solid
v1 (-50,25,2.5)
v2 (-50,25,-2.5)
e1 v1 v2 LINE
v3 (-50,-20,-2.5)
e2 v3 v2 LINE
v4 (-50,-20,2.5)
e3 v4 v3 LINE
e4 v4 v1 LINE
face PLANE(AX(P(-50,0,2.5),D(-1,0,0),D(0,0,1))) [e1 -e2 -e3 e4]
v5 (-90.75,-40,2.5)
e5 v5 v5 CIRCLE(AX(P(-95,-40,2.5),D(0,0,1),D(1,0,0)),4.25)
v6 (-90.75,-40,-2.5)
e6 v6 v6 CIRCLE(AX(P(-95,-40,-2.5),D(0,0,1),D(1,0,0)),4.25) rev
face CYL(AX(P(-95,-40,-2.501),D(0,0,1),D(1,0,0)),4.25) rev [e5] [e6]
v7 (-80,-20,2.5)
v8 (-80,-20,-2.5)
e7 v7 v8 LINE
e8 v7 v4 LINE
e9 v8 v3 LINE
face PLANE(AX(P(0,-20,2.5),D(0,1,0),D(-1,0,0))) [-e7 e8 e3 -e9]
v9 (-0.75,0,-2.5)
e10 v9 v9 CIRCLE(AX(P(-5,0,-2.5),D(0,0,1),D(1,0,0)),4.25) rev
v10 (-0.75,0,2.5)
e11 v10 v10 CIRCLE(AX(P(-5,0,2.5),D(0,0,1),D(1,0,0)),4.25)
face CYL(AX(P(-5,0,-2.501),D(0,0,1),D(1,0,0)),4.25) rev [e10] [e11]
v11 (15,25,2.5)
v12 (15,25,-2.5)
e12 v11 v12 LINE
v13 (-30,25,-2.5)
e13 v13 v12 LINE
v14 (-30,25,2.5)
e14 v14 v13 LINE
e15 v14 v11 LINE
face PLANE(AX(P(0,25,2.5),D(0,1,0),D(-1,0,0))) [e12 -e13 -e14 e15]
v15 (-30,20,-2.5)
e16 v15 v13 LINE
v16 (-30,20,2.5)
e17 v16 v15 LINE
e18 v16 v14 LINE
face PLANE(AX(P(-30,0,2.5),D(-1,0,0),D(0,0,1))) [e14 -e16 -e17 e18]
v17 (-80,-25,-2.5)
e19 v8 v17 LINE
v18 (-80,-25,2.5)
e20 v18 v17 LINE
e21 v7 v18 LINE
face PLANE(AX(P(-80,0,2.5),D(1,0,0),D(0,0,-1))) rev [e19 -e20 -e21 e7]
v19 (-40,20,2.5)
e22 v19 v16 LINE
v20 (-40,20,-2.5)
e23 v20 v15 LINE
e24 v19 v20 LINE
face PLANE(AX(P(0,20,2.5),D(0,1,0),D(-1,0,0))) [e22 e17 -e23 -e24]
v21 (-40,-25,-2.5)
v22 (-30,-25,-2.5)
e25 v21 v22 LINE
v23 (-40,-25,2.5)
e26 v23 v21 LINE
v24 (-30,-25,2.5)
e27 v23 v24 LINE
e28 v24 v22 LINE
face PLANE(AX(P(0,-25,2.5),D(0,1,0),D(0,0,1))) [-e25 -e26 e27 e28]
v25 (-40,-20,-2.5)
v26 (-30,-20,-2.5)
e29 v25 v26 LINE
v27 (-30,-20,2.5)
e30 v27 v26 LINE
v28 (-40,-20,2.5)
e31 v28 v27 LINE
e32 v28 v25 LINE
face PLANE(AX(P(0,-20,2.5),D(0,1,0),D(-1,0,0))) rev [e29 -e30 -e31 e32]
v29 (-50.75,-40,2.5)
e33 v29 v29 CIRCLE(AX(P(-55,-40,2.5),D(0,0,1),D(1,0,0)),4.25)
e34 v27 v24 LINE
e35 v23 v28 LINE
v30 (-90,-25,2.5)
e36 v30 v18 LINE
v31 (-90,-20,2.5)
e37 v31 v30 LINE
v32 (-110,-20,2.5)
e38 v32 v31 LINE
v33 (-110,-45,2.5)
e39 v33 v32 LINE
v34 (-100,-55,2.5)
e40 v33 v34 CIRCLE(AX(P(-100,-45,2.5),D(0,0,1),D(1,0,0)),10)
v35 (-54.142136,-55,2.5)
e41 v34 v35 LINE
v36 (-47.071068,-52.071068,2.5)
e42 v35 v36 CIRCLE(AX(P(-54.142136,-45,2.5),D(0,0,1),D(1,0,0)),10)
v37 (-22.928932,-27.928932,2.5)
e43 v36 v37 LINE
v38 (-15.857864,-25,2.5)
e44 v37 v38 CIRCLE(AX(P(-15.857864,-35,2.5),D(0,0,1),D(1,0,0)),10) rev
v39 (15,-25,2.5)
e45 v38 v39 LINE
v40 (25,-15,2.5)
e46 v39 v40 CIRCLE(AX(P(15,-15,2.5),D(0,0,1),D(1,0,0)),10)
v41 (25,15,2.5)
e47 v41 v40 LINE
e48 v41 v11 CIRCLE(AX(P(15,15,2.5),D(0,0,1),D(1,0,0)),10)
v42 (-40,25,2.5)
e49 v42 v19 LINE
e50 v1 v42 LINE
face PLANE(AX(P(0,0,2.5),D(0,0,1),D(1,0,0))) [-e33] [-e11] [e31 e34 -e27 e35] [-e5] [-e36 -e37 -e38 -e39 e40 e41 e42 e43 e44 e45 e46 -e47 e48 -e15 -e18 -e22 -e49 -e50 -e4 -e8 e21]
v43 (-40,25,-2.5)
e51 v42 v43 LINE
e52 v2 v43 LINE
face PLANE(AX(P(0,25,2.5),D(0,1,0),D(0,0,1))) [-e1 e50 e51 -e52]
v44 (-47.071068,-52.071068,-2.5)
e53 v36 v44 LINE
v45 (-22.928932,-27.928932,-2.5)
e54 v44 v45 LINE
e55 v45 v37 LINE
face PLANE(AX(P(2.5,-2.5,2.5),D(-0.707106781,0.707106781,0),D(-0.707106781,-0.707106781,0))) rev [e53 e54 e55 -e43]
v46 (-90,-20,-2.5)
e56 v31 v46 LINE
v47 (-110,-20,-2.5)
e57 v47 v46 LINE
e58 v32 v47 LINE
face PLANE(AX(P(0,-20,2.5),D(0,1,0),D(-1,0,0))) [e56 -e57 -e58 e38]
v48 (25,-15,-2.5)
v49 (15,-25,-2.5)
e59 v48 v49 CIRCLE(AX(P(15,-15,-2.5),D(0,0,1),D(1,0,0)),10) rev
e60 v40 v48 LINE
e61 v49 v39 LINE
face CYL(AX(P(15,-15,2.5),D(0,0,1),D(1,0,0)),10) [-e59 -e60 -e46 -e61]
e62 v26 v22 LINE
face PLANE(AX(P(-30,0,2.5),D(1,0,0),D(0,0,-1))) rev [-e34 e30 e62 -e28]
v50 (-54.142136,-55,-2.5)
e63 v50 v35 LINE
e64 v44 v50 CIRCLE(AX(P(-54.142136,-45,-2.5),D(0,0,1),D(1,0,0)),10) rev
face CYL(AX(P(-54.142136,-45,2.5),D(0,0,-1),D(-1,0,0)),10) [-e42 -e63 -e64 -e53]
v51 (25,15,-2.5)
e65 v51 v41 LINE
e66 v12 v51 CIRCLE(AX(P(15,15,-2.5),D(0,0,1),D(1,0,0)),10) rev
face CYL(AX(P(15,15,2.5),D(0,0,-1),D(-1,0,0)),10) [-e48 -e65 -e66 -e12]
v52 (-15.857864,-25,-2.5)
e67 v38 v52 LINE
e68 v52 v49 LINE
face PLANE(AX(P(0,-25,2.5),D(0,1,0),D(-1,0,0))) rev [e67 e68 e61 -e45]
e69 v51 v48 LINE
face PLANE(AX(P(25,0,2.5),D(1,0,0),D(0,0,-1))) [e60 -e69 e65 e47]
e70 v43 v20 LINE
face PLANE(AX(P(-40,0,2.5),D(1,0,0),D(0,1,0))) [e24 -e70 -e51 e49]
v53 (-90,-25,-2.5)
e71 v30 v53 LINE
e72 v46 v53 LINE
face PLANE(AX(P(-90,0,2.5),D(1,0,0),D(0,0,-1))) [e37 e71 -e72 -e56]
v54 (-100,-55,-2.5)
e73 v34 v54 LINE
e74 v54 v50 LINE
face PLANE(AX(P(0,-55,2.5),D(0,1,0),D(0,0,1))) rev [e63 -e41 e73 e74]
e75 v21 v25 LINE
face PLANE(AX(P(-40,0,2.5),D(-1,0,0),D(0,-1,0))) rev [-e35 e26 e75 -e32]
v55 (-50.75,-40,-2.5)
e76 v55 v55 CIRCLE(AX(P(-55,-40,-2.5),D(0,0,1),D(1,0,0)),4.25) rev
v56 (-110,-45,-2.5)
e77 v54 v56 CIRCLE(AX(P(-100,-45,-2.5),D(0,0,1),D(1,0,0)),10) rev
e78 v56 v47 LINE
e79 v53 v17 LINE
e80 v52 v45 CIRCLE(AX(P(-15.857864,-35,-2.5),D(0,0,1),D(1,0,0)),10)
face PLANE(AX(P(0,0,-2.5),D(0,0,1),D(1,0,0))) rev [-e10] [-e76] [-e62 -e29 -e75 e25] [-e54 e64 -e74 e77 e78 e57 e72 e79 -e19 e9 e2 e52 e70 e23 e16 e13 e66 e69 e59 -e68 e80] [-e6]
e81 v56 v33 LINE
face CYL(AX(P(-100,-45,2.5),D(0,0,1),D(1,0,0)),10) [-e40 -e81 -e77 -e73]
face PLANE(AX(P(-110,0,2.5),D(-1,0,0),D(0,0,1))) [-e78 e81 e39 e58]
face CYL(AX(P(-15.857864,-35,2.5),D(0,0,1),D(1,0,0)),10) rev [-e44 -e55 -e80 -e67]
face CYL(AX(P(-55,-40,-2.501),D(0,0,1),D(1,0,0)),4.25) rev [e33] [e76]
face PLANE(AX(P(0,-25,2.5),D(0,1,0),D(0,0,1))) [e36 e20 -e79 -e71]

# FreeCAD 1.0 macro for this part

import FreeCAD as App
import Part
import Sketcher
from FreeCAD import Vector


def edges_at(feature, points):
    """Names of the edges that pass closest to the given points."""
    edges = feature.Shape.Edges
    near = lambda p: min(range(len(edges)), key=lambda i: edges[i].distToShape(Part.Vertex(*p))[0])
    return sorted({f"Edge{near(p) + 1}" for p in points})


def add_polygon(sketch, points):
    """Adds a closed chain of lines whose ends are joined by coincident constraints."""
    first, n = sketch.GeometryCount, len(points)
    for a, b in zip(points, points[1:] + points[:1]):
        sketch.addGeometry(Part.LineSegment(App.Vector(*a, 0), App.Vector(*b, 0)), False)
    for i in range(n):
        sketch.addConstraint(Sketcher.Constraint("Coincident", first + i, 2, first + (i + 1) % n, 1))

doc = App.newDocument("Part")
body = doc.addObject("PartDesign::Body", "Body")

sketch1 = body.newObject("Sketcher::SketchObject", "Sketch")
sketch1.AttachmentSupport = (doc.getObject("XY_Plane"), [""])
sketch1.MapMode = "FlatFace"
add_polygon(sketch1, [(-50, -55), (-20, -25), (25, -25), (25, 25), (-30, 25), (-30, 20), (-40, 20), (-40, 25), (-50, 25), (-50, -20), (-80, -20), (-80, -25), (-90, -25), (-90, -20), (-110, -20), (-110, -55)])
add_polygon(sketch1, [(-30, -20), (-30, -25), (-40, -25), (-40, -20)])
sketch1.addConstraint([
    Sketcher.Constraint("Horizontal", 1),
    Sketcher.Constraint("Vertical", 2),
    Sketcher.Constraint("Horizontal", 3),
    Sketcher.Constraint("Vertical", 4),
    Sketcher.Constraint("Horizontal", 5),
    Sketcher.Constraint("Vertical", 6),
    Sketcher.Constraint("Horizontal", 7),
    Sketcher.Constraint("Vertical", 8),
    Sketcher.Constraint("Horizontal", 9),
    Sketcher.Constraint("Vertical", 10),
    Sketcher.Constraint("Horizontal", 11),
    Sketcher.Constraint("Vertical", 12),
    Sketcher.Constraint("Horizontal", 13),
    Sketcher.Constraint("Vertical", 14),
    Sketcher.Constraint("Horizontal", 15),
    Sketcher.Constraint("Vertical", 16),
    Sketcher.Constraint("Horizontal", 17),
    Sketcher.Constraint("Vertical", 18),
    Sketcher.Constraint("Horizontal", 19),
    Sketcher.Constraint("Symmetric", 3, 2, 16, 2, -1),
    Sketcher.Constraint("Symmetric", 6, 2, 17, 2, -1),
    Sketcher.Constraint("Horizontal", 1, 2, 10, 2),
    Sketcher.Constraint("Horizontal", 9, 2, 12, 2),
    Sketcher.Constraint("Horizontal", 11, 2, 16, 2),
    Sketcher.Constraint("Horizontal", 13, 2, 18, 2),
    Sketcher.Constraint("Vertical", 8, 2, 15, 2),
    Sketcher.Constraint("Equal", 5, 7),
    Sketcher.Constraint("Equal", 7, 11),
    Sketcher.Constraint("Equal", 1, 8),
    Sketcher.Constraint("Equal", 6, 10),
    Sketcher.Constraint("DistanceX", 1, 1, 1, 2, 45.0),
    Sketcher.Constraint("DistanceX", 3, 2, 3, 1, 55.0),
    Sketcher.Constraint("DistanceX", 5, 2, 5, 1, 10.0),
    Sketcher.Constraint("DistanceX", 9, 2, 9, 1, 30.0),
    Sketcher.Constraint("DistanceX", 13, 2, 13, 1, 20.0),
    Sketcher.Constraint("DistanceY", 2, 1, 2, 2, 50.0),
    Sketcher.Constraint("DistanceY", 14, 2, 14, 1, 35.0),
    Sketcher.Constraint("DistanceX", 0, 2, -1, 1, 20.0),
])
pad1 = body.newObject("PartDesign::Pad", "Pad")
pad1.Profile = sketch1
pad1.Length = 5
pad1.Midplane = True
doc.recompute()

fillet = body.newObject("PartDesign::Fillet", "Fillet")
fillet.Base = (pad1, edges_at(pad1, [
    (-50, -55, 0),
    (-110, -55, 0),
    (25, 25, 0),
    (25, -25, 0),
    (-20, -25, 0),
]))
fillet.Radius = 10

sketch2 = body.newObject("Sketcher::SketchObject", "Sketch001")
sketch2.AttachmentSupport = (doc.getObject("XY_Plane"), [""])
sketch2.MapMode = "FlatFace"
sketch2.AttachmentOffset = App.Placement(Vector(0, 0, 2.5), App.Rotation())
sketch2.addGeometry(Part.Circle(Vector(-95, -40, 0), Vector(0, 0, 1), 4.2), False)
sketch2.addConstraint([
    Sketcher.Constraint("Diameter", 0, 8.5),
    Sketcher.Constraint("DistanceX", 0, 3, -1, 1, 95.0),
    Sketcher.Constraint("DistanceY", 0, 3, -1, 1, 40.0),
])
pocket1 = body.newObject("PartDesign::Pocket", "Pocket")
pocket1.Profile = sketch2
pocket1.Type = "UpToFirst"

sketch3 = body.newObject("Sketcher::SketchObject", "Sketch002")
sketch3.AttachmentSupport = (doc.getObject("XY_Plane"), [""])
sketch3.MapMode = "FlatFace"
sketch3.AttachmentOffset = App.Placement(Vector(0, 0, 2.5), App.Rotation())
sketch3.addGeometry(Part.Circle(Vector(-55, -40, 0), Vector(0, 0, 1), 4.2), False)
sketch3.addConstraint([
    Sketcher.Constraint("Diameter", 0, 8.5),
    Sketcher.Constraint("DistanceX", 0, 3, -1, 1, 55.0),
    Sketcher.Constraint("DistanceY", 0, 3, -1, 1, 40.0),
])
pocket2 = body.newObject("PartDesign::Pocket", "Pocket001")
pocket2.Profile = sketch3
pocket2.Type = "UpToFirst"

sketch4 = body.newObject("Sketcher::SketchObject", "Sketch003")
sketch4.AttachmentSupport = (doc.getObject("XY_Plane"), [""])
sketch4.MapMode = "FlatFace"
sketch4.AttachmentOffset = App.Placement(Vector(0, 0, 2.5), App.Rotation())
sketch4.addGeometry(Part.Circle(Vector(-5, 0, 0), Vector(0, 0, 1), 4.2), False)
sketch4.addConstraint([
    Sketcher.Constraint("PointOnObject", 0, 3, -1),
    Sketcher.Constraint("Diameter", 0, 8.5),
    Sketcher.Constraint("DistanceX", 0, 3, -1, 1, 5.0),
])
pocket3 = body.newObject("PartDesign::Pocket", "Pocket002")
pocket3.Profile = sketch4
pocket3.Type = "UpToFirst"

doc.recompute()
